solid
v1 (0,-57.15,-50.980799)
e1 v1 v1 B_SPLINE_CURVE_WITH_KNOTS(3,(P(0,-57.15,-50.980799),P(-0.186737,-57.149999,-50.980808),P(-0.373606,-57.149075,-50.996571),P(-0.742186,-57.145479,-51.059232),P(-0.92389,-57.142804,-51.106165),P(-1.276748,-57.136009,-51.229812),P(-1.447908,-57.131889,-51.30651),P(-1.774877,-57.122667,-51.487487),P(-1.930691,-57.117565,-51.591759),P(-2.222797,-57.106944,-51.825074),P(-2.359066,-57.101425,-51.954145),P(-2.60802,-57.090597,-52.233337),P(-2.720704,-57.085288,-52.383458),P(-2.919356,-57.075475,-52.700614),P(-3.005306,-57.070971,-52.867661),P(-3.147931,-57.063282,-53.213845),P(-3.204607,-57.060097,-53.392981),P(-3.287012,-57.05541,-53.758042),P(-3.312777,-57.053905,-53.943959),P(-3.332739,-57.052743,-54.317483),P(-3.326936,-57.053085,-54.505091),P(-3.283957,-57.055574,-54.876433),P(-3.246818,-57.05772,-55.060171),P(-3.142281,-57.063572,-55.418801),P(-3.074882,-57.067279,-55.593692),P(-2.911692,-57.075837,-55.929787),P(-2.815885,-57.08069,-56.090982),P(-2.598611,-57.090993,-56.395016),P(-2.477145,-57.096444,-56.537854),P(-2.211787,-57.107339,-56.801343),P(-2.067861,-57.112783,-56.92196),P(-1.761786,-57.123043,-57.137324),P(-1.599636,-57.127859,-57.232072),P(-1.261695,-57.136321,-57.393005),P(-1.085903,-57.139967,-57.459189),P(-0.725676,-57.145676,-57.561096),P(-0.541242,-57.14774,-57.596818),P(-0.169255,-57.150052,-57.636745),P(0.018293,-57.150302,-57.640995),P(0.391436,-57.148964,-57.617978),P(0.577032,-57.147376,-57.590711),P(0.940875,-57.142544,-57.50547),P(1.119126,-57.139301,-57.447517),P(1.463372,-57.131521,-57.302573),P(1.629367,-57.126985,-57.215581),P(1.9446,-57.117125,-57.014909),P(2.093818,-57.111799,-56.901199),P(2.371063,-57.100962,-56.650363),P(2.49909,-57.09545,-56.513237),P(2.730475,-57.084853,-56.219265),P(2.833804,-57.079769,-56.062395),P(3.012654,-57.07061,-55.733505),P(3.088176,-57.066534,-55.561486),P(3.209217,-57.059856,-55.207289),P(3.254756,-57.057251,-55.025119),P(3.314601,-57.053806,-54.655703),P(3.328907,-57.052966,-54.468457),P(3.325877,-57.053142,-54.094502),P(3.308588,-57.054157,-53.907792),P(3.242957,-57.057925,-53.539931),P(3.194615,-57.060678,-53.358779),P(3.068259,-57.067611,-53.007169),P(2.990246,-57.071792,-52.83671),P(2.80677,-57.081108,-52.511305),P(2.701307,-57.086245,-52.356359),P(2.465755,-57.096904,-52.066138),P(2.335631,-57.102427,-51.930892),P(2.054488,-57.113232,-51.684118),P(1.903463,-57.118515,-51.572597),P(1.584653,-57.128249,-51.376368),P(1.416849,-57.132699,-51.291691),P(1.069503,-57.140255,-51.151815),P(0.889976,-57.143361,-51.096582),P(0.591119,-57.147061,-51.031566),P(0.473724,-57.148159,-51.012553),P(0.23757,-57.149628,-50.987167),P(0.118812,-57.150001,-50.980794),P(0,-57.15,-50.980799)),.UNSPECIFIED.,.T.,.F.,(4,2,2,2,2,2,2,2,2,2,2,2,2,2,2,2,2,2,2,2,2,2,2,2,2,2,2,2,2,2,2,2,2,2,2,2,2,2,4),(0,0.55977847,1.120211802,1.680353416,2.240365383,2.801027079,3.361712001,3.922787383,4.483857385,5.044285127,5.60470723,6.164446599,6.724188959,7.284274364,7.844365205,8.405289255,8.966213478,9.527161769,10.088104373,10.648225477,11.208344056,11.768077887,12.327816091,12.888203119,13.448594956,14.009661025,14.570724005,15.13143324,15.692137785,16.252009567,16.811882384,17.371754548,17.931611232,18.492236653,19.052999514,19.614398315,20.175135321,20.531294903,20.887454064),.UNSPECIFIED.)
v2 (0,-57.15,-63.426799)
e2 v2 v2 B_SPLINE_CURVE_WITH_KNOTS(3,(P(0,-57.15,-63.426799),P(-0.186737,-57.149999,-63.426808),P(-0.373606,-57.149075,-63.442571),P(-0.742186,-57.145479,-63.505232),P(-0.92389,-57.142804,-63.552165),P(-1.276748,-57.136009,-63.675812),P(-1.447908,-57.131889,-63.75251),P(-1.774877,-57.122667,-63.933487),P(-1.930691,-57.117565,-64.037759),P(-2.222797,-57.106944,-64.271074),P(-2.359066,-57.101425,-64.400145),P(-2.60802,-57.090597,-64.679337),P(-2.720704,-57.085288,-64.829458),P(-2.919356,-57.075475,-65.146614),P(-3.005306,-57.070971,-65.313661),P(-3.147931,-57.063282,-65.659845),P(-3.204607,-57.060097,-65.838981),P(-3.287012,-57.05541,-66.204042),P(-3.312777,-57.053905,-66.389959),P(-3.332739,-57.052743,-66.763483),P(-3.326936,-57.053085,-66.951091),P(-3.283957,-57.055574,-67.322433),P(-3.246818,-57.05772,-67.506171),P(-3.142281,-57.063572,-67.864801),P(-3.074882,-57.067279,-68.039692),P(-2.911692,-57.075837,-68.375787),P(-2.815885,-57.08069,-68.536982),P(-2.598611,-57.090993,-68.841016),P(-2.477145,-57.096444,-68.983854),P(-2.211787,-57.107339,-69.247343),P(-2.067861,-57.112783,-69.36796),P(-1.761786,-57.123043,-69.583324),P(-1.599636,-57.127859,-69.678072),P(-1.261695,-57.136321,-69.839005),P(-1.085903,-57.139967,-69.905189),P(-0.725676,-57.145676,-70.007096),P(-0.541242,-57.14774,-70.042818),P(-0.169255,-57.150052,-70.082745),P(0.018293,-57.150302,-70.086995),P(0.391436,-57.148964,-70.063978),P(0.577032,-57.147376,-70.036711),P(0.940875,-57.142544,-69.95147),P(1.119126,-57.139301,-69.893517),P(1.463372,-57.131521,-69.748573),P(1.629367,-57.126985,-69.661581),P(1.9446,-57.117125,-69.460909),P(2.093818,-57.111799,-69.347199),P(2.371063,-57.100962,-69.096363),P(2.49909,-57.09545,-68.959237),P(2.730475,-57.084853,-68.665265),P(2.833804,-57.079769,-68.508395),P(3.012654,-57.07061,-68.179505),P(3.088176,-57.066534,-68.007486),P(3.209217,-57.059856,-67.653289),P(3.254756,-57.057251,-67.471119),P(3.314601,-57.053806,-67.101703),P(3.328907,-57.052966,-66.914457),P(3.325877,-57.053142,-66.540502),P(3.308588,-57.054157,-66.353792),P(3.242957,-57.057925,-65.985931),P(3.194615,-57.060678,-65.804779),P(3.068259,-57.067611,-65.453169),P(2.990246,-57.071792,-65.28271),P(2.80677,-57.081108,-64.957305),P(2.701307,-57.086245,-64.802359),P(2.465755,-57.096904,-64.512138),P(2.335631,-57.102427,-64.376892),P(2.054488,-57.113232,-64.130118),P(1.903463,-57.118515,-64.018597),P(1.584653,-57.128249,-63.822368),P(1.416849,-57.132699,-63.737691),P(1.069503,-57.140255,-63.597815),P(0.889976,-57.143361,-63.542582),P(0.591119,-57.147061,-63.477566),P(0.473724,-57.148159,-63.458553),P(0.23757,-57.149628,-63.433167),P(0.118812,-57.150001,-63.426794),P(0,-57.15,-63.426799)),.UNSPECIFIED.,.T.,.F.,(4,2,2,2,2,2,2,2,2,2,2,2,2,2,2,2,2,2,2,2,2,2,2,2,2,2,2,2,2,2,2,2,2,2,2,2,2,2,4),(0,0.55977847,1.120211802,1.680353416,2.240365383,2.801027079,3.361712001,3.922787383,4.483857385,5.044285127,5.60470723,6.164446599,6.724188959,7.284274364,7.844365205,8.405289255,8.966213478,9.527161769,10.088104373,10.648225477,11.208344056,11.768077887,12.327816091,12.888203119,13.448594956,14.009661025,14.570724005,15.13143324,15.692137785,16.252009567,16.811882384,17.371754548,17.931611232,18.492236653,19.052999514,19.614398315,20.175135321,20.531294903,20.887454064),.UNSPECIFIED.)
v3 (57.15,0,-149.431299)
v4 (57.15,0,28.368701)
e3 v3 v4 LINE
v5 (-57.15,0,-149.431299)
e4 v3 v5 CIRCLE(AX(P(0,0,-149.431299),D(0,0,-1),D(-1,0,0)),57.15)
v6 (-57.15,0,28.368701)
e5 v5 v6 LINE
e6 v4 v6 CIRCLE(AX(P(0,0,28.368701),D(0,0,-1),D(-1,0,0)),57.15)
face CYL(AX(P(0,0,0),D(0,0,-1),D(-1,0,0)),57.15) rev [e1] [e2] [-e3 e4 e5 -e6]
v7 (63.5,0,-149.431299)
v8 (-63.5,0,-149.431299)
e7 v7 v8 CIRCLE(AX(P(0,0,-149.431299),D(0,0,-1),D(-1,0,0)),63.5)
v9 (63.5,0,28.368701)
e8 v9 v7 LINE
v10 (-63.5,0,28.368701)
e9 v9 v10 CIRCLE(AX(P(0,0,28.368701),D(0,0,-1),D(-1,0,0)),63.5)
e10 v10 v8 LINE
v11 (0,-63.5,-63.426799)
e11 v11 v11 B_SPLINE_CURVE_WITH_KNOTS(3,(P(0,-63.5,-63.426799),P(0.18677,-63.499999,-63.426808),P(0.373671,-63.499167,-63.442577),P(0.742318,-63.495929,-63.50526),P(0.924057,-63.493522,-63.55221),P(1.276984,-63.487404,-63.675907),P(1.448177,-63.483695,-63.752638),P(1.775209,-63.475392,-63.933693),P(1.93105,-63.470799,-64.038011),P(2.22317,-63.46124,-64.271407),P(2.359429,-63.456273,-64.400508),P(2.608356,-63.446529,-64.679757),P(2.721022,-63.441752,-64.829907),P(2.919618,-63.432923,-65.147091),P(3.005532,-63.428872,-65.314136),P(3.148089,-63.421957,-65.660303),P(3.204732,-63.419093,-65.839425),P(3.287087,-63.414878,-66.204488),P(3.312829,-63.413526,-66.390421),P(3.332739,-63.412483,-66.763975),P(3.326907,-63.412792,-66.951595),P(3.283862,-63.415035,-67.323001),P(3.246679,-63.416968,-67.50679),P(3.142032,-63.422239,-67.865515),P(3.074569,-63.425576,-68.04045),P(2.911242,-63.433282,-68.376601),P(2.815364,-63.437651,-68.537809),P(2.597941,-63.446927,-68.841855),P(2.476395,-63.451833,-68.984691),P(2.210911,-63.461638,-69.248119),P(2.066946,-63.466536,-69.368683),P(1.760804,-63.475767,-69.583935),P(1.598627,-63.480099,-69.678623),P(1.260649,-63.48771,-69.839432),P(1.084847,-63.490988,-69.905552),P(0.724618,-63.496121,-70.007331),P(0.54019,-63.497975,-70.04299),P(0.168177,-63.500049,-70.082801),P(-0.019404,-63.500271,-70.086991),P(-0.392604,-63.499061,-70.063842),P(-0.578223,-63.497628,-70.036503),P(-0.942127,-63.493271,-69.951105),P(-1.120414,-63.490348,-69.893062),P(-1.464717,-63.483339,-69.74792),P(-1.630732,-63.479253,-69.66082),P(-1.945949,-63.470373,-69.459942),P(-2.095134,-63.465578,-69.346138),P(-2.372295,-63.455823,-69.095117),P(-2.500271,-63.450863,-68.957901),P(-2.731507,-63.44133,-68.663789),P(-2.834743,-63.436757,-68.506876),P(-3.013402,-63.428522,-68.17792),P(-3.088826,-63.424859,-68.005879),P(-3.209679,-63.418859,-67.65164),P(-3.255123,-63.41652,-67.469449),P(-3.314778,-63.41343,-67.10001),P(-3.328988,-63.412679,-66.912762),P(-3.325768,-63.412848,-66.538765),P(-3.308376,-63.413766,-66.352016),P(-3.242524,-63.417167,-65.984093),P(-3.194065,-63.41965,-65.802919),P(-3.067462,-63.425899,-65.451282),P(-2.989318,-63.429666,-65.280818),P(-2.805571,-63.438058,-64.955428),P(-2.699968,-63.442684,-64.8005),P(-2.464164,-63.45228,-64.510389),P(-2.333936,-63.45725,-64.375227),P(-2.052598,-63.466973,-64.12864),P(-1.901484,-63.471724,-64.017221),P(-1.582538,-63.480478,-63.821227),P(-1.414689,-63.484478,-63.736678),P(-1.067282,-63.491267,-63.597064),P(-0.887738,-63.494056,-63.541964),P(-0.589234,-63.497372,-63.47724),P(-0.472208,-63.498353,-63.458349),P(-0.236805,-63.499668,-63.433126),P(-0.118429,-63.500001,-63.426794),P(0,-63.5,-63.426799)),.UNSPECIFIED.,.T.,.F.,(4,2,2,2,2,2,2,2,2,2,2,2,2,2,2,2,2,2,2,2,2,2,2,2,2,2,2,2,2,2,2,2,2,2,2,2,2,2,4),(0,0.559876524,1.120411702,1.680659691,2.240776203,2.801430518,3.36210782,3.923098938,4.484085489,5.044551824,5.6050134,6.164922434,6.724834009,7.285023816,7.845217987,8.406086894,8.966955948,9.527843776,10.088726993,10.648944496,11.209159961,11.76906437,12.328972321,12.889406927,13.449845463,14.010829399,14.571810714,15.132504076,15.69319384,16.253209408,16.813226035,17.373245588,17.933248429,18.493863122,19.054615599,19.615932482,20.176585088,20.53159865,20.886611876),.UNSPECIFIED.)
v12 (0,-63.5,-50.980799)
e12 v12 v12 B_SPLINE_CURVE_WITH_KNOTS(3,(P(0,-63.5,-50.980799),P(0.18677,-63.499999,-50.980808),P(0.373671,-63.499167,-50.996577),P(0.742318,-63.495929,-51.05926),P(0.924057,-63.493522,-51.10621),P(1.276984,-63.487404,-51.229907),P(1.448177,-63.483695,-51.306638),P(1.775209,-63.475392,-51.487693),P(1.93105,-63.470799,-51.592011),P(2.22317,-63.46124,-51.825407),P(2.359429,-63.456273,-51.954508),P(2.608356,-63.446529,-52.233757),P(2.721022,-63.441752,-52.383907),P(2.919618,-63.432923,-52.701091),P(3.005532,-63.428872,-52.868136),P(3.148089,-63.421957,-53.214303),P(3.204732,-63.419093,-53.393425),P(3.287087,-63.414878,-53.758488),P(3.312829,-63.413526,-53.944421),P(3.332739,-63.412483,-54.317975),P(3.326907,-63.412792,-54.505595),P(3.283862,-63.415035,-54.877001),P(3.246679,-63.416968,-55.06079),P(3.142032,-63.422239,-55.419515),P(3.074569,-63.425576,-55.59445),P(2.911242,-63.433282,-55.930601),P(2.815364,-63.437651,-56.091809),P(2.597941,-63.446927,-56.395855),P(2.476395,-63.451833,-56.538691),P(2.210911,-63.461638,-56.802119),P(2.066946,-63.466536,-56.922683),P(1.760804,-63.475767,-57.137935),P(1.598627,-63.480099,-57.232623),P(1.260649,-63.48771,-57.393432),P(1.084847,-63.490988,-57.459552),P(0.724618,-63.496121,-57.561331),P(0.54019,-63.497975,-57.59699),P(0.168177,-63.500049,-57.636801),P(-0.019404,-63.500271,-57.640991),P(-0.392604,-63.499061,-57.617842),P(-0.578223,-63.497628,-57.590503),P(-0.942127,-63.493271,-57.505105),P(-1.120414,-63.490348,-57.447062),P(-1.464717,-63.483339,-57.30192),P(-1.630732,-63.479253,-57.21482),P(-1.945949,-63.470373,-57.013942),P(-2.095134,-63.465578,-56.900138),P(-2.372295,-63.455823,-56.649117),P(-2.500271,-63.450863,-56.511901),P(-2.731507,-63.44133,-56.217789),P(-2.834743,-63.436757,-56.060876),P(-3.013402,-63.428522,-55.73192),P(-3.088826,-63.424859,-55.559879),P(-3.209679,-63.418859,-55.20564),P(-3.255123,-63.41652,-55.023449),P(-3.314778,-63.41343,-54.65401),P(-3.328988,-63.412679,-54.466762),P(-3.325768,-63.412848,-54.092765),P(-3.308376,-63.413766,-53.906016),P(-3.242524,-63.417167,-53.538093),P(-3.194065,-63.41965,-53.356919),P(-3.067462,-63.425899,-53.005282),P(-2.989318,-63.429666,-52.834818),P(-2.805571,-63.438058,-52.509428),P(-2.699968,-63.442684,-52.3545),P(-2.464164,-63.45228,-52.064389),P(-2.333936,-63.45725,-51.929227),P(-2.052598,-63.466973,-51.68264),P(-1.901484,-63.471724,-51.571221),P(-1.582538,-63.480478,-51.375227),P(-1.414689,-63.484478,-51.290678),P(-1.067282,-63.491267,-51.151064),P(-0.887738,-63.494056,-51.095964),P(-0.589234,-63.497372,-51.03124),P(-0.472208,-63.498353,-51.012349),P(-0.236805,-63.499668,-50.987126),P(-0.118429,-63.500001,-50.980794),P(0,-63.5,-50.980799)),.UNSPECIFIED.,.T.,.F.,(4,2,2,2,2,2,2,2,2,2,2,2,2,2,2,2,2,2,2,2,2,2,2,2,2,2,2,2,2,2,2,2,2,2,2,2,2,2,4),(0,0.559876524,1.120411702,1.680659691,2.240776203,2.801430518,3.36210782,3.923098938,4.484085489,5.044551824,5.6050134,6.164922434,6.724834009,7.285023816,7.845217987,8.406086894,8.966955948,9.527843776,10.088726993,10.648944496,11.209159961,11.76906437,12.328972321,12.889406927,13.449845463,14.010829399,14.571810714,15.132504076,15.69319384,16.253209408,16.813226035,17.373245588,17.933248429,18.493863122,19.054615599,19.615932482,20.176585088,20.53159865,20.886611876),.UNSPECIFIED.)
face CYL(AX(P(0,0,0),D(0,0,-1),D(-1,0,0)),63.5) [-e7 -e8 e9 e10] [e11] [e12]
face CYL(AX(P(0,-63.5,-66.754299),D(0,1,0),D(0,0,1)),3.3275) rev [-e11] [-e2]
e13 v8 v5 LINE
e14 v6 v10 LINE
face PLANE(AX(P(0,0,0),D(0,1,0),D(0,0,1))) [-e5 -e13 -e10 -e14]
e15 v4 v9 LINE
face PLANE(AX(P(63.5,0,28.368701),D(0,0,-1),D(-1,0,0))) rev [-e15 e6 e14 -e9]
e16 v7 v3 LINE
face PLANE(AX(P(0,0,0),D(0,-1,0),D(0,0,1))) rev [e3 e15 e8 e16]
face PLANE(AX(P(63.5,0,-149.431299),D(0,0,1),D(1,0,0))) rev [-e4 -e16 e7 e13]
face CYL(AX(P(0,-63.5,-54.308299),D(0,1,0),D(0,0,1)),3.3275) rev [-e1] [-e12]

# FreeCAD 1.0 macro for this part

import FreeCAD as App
import Part
import Sketcher
Q = App.Units.Quantity

doc = App.newDocument("Part")
body = doc.addObject("PartDesign::Body", "Body")

# Sketch on XZ plane
sketch1 = body.newObject("Sketcher::SketchObject", "Sketch")
sketch1.AttachmentSupport = (doc.getObject("XZ_Plane"), [""])
sketch1.MapMode = "FlatFace"
sketch1.addGeometry([
    Part.LineSegment(App.Vector(-57.15, 28.368701, 0), App.Vector(-63.5, 28.368701, 0)),
    Part.LineSegment(App.Vector(-63.5, 28.368701, 0), App.Vector(-63.5, -149.431299, 0)),
    Part.LineSegment(App.Vector(-63.5, -149.431299, 0), App.Vector(-57.15, -149.431299, 0)),
    Part.LineSegment(App.Vector(-57.15, -149.431299, 0), App.Vector(-57.15, 28.368701, 0)),
], False)
sketch1.addConstraint([
    Sketcher.Constraint("Coincident", 0, 2, 1, 1),
    Sketcher.Constraint("Coincident", 1, 2, 2, 1),
    Sketcher.Constraint("Coincident", 2, 2, 3, 1),
    Sketcher.Constraint("Coincident", 3, 2, 0, 1),
    Sketcher.Constraint("Horizontal", 0),
    Sketcher.Constraint("Vertical", 1),
    Sketcher.Constraint("Horizontal", 2),
    Sketcher.Constraint("Vertical", 3),
    Sketcher.Constraint("DistanceY", 1, 2, 1, 1, Q("7 in")),
    Sketcher.Constraint("DistanceX", 0, 2, 0, 1, Q("0.25 in")),
    Sketcher.Constraint("DistanceX", 0, 2, -1, 1, Q("2.5 in")),
    Sketcher.Constraint("DistanceY", -1, 1, 0, 2, Q("28.368701 mm")),
])
revolution = body.newObject("PartDesign::Revolution", "Revolution")
revolution.Profile = sketch1
revolution.ReferenceAxis = (sketch1, ["V_Axis"])
revolution.Angle = 180

# Sketch on XZ plane
sketch2 = body.newObject("Sketcher::SketchObject", "Sketch001")
sketch2.AttachmentSupport = (doc.getObject("XZ_Plane"), [""])
sketch2.MapMode = "FlatFace"
sketch2.addGeometry([
    Part.Circle(App.Vector(0, -66.754299, 0), App.Vector(0, 0, 1), 3.3275),
    Part.Circle(App.Vector(0, -54.308299, 0), App.Vector(0, 0, 1), 3.3275),
], False)
sketch2.addConstraint([
    Sketcher.Constraint("Equal", 0, 1),
    Sketcher.Constraint("PointOnObject", 0, 3, -2),
    Sketcher.Constraint("PointOnObject", 1, 3, -2),
    Sketcher.Constraint("Diameter", 0, Q("6.655 mm")),
    Sketcher.Constraint("DistanceY", 0, 3, 1, 3, Q("0.49 in")),
    Sketcher.Constraint("DistanceY", 0, 3, -1, 1, Q("66.754299 mm")),
])
pocket1 = body.newObject("PartDesign::Pocket", "Pocket")
pocket1.Profile = sketch2
pocket1.Type = "ThroughAll"
pocket1.Reversed = True

doc.recompute()
